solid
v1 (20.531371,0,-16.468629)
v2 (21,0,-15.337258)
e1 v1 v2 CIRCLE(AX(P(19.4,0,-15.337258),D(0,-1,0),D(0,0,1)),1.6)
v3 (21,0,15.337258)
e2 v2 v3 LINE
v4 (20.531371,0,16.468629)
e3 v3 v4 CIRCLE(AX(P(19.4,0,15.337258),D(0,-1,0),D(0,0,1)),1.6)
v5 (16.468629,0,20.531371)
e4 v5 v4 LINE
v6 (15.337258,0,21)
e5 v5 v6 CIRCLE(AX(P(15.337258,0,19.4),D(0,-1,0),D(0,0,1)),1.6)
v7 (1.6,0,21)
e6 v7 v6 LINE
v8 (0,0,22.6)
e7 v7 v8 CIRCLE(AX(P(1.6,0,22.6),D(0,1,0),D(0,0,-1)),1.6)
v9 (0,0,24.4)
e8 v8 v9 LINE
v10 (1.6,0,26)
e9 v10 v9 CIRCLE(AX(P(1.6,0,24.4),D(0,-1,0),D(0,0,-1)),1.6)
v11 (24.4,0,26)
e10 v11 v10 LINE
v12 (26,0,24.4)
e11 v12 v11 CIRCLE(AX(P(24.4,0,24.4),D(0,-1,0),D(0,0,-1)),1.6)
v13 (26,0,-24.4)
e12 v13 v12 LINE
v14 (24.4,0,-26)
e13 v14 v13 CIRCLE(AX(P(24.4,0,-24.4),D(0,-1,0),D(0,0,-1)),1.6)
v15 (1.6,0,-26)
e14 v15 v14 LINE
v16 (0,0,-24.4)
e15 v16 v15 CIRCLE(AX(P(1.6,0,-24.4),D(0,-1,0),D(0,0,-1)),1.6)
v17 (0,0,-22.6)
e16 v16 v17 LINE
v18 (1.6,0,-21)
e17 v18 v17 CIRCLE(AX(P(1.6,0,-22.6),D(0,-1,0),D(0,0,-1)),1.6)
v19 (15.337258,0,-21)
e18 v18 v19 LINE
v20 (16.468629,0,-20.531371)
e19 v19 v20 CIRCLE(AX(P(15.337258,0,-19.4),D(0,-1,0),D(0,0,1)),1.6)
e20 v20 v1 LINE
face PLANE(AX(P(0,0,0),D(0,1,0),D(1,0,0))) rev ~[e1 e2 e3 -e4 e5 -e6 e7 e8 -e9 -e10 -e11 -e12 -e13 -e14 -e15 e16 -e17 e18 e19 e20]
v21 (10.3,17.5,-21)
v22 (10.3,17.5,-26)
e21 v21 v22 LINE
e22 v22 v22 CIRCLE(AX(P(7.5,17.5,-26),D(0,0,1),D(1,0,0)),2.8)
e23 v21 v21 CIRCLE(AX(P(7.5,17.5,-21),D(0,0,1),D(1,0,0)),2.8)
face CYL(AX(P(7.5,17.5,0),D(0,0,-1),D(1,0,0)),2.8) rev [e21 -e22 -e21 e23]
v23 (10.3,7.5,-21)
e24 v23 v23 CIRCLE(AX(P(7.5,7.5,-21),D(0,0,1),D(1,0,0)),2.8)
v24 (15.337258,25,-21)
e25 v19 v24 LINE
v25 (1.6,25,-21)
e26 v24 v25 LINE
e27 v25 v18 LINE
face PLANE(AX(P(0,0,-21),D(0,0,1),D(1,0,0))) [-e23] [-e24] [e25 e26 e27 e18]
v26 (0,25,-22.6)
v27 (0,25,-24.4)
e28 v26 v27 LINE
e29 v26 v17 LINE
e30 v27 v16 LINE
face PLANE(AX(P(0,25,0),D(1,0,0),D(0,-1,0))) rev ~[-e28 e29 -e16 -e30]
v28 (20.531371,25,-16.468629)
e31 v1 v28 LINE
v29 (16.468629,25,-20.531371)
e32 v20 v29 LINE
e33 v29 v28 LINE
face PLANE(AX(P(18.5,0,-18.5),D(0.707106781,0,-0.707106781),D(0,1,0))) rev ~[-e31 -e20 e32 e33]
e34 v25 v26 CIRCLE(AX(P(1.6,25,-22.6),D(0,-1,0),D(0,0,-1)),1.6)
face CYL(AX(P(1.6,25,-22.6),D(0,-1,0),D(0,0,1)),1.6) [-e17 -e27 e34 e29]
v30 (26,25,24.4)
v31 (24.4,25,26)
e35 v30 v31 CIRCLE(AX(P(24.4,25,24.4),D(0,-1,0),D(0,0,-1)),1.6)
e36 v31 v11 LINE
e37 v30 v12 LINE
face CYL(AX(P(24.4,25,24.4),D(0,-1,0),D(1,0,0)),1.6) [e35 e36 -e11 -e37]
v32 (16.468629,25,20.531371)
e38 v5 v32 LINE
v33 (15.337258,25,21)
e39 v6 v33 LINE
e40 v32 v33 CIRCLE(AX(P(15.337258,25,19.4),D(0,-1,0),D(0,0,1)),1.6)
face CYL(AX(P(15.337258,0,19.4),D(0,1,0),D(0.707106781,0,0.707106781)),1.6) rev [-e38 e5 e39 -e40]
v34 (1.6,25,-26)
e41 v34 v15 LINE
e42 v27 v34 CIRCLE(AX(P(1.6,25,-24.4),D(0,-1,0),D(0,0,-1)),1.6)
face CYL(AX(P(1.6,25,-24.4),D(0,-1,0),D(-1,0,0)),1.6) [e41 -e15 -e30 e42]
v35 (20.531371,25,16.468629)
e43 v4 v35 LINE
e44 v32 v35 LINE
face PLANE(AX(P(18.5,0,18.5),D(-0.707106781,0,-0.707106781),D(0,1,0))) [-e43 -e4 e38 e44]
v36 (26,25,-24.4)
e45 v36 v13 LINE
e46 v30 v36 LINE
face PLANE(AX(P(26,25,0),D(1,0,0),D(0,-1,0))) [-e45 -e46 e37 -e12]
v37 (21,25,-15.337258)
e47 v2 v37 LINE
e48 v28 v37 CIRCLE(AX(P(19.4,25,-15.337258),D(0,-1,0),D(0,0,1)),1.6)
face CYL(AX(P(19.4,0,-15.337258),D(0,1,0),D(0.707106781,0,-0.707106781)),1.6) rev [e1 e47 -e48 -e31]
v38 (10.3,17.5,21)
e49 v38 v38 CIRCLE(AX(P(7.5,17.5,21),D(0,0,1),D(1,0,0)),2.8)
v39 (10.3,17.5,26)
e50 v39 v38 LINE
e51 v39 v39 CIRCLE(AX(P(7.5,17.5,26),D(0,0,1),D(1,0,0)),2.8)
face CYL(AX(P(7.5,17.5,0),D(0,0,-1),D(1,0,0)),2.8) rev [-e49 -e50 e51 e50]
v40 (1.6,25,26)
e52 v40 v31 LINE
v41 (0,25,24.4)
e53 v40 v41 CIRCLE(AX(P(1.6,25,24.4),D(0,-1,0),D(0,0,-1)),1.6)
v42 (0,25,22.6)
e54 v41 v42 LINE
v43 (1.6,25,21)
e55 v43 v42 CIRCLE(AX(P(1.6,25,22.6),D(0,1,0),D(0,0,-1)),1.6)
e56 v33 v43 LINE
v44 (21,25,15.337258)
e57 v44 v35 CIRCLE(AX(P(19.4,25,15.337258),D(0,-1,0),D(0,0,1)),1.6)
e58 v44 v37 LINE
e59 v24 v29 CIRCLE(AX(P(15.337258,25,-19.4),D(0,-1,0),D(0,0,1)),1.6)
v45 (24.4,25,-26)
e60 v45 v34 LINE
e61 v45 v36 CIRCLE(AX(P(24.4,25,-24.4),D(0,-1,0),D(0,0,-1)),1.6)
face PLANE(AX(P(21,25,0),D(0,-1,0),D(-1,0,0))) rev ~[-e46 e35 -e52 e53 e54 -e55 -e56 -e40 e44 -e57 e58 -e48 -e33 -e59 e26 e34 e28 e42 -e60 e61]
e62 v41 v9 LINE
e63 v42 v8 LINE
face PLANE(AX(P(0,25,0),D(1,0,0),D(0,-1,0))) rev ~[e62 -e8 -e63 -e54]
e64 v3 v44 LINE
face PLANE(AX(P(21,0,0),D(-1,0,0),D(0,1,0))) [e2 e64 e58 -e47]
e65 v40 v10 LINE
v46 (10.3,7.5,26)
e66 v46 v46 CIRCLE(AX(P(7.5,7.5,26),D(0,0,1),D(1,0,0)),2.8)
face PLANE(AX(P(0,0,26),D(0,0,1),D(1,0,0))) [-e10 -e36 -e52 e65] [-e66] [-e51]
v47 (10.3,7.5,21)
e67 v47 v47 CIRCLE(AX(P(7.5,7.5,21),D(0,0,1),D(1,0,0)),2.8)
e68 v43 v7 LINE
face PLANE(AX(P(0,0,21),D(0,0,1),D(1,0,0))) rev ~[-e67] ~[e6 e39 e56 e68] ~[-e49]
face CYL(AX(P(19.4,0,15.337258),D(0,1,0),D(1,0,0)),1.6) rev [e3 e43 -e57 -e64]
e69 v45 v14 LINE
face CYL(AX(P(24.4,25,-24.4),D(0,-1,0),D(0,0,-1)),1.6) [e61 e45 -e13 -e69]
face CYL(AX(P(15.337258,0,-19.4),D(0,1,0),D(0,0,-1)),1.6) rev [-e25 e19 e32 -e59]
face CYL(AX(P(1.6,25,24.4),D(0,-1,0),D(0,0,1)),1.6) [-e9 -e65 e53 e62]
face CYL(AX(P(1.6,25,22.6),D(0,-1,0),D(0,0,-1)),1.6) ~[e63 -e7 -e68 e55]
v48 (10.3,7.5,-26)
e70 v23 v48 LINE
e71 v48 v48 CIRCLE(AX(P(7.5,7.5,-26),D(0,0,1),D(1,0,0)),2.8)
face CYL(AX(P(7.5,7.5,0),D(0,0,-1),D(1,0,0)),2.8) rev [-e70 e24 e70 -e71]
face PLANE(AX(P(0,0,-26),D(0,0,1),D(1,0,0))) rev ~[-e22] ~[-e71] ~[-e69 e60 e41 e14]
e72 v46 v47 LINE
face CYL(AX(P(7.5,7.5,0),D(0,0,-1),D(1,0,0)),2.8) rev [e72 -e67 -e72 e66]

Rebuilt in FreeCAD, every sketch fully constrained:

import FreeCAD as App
import Part
import Sketcher
from FreeCAD import Vector
Q = App.Units.Quantity


def edges_at(feature, points):
    """Names of the edges that pass closest to the given points."""
    edges = feature.Shape.Edges
    near = lambda p: min(range(len(edges)), key=lambda i: edges[i].distToShape(Part.Vertex(*p))[0])
    return sorted({f"Edge{near(p) + 1}" for p in points})


def add_polygon(sketch, points):
    """Adds a closed chain of lines whose ends are joined by coincident constraints."""
    first, n = sketch.GeometryCount, len(points)
    for a, b in zip(points, points[1:] + points[:1]):
        sketch.addGeometry(Part.LineSegment(App.Vector(*a, 0), App.Vector(*b, 0)), False)
    for i in range(n):
        sketch.addConstraint(Sketcher.Constraint("Coincident", first + i, 2, first + (i + 1) % n, 1))

doc = App.newDocument("Part")
params = doc.addObject("Spreadsheet::Sheet", "Params")
for row, (alias, value) in enumerate([
    ("sketch1_diameter", "5.6 mm"),
    ("sketch1_height", "25 mm"),
    ("sketch1_width", "26 mm"),
    ("pad1_length", "52 mm"),
    ("sketch2_diameter", "5.6 mm"),
    ("sketch2_width", "21 mm"),
    ("sketch2_height", "25 mm"),
    ("pocket1_length", "42 mm"),
    ("chamfer_size", "5 mm"),
    ("fillet_radius", "1.6 mm"),
], start=1):
    params.set(f"A{row}", alias)
    params.set(f"B{row}", "=" + value)
    params.setAlias(f"B{row}", alias)

body = doc.addObject("PartDesign::Body", "Body")

sketch1 = body.newObject("Sketcher::SketchObject", "Sketch")
sketch1.AttachmentSupport = (doc.getObject("XY_Plane"), [""])
sketch1.MapMode = "FlatFace"
add_polygon(sketch1, [(0, 25), (0, 0), (26, 0), (26, 25)])
sketch1.addGeometry(Part.Circle(Vector(7.5, 7.5, 0), Vector(0, 0, 1), 2.8), False)
sketch1.addGeometry(Part.Circle(Vector(7.5, 17.5, 0), Vector(0, 0, 1), 2.8), False)
sketch1.addConstraint([
    Sketcher.Constraint("Vertical", 0),
    Sketcher.Constraint("Horizontal", 1),
    Sketcher.Constraint("Vertical", 2),
    Sketcher.Constraint("Horizontal", 3),
    Sketcher.Constraint("Coincident", 0, 2, -1, 1),
    Sketcher.Constraint("Equal", 4, 5),
    Sketcher.Constraint("Vertical", 4, 3, 5, 3),
    Sketcher.Constraint("Diameter", 4, Q("5.6 mm")),
    Sketcher.Constraint("DistanceY", 0, 2, 0, 1, Q("25 mm")),
    Sketcher.Constraint("DistanceY", 4, 3, 5, 3, Q("10 mm")),
    Sketcher.Constraint("DistanceX", -1, 1, 4, 3, Q("7.5 mm")),
    Sketcher.Constraint("DistanceY", -1, 1, 4, 3, Q("7.5 mm")),
    Sketcher.Constraint("DistanceX", 1, 1, 1, 2, Q("26 mm")),
])
sketch1.setExpression("Constraints[11]", "Params.sketch1_diameter")
sketch1.setExpression("Constraints[12]", "Params.sketch1_height")
sketch1.setExpression("Constraints[16]", "Params.sketch1_width")
pad1 = body.newObject("PartDesign::Pad", "Pad")
pad1.Profile = sketch1
pad1.setExpression("Length", "Params.pad1_length")
pad1.Midplane = True

sketch2 = body.newObject("Sketcher::SketchObject", "Sketch001")
sketch2.AttachmentSupport = (doc.getObject("XY_Plane"), [""])
sketch2.MapMode = "FlatFace"
add_polygon(sketch2, [(0, 25), (0, 0), (21, 0), (21, 25)])
sketch2.addGeometry(Part.Circle(Vector(7.5, 7.5, 0), Vector(0, 0, 1), 2.8), False)
sketch2.addGeometry(Part.Circle(Vector(7.5, 17.5, 0), Vector(0, 0, 1), 2.8), False)
sketch2.addConstraint([
    Sketcher.Constraint("Vertical", 0),
    Sketcher.Constraint("Horizontal", 1),
    Sketcher.Constraint("Vertical", 2),
    Sketcher.Constraint("Horizontal", 3),
    Sketcher.Constraint("Coincident", 0, 2, -1, 1),
    Sketcher.Constraint("Equal", 4, 5),
    Sketcher.Constraint("Vertical", 4, 3, 5, 3),
    Sketcher.Constraint("Diameter", 4, Q("5.6 mm")),
    Sketcher.Constraint("DistanceX", 1, 1, 1, 2, Q("21 mm")),
    Sketcher.Constraint("DistanceY", 0, 2, 0, 1, Q("25 mm")),
    Sketcher.Constraint("DistanceY", 4, 3, 5, 3, Q("10 mm")),
    Sketcher.Constraint("DistanceX", -1, 1, 4, 3, Q("7.5 mm")),
    Sketcher.Constraint("DistanceY", -1, 1, 4, 3, Q("7.5 mm")),
])
sketch2.setExpression("Constraints[11]", "Params.sketch2_diameter")
sketch2.setExpression("Constraints[12]", "Params.sketch2_width")
sketch2.setExpression("Constraints[13]", "Params.sketch2_height")
pocket1 = body.newObject("PartDesign::Pocket", "Pocket")
pocket1.Profile = sketch2
pocket1.setExpression("Length", "Params.pocket1_length")
pocket1.Midplane = True
doc.recompute()

chamfer = body.newObject("PartDesign::Chamfer", "Chamfer")
chamfer.Base = (pocket1, edges_at(pocket1, [(21, 12.5, 21), (21, 12.5, -21)]))
chamfer.setExpression("Size", "Params.chamfer_size")
doc.recompute()

fillet = body.newObject("PartDesign::Fillet", "Fillet")
fillet.Base = (chamfer, edges_at(chamfer, [
    (0, 12.5, 26),
    (0, 12.5, 21),
    (26, 12.5, 26),
    (26, 12.5, -26),
    (0, 12.5, -26),
    (0, 12.5, -21),
    (16, 12.5, 21),
    (21, 12.5, 16),
    (21, 12.5, -16),
    (16, 12.5, -21),
]))
fillet.setExpression("Radius", "Params.fillet_radius")

doc.recompute()
